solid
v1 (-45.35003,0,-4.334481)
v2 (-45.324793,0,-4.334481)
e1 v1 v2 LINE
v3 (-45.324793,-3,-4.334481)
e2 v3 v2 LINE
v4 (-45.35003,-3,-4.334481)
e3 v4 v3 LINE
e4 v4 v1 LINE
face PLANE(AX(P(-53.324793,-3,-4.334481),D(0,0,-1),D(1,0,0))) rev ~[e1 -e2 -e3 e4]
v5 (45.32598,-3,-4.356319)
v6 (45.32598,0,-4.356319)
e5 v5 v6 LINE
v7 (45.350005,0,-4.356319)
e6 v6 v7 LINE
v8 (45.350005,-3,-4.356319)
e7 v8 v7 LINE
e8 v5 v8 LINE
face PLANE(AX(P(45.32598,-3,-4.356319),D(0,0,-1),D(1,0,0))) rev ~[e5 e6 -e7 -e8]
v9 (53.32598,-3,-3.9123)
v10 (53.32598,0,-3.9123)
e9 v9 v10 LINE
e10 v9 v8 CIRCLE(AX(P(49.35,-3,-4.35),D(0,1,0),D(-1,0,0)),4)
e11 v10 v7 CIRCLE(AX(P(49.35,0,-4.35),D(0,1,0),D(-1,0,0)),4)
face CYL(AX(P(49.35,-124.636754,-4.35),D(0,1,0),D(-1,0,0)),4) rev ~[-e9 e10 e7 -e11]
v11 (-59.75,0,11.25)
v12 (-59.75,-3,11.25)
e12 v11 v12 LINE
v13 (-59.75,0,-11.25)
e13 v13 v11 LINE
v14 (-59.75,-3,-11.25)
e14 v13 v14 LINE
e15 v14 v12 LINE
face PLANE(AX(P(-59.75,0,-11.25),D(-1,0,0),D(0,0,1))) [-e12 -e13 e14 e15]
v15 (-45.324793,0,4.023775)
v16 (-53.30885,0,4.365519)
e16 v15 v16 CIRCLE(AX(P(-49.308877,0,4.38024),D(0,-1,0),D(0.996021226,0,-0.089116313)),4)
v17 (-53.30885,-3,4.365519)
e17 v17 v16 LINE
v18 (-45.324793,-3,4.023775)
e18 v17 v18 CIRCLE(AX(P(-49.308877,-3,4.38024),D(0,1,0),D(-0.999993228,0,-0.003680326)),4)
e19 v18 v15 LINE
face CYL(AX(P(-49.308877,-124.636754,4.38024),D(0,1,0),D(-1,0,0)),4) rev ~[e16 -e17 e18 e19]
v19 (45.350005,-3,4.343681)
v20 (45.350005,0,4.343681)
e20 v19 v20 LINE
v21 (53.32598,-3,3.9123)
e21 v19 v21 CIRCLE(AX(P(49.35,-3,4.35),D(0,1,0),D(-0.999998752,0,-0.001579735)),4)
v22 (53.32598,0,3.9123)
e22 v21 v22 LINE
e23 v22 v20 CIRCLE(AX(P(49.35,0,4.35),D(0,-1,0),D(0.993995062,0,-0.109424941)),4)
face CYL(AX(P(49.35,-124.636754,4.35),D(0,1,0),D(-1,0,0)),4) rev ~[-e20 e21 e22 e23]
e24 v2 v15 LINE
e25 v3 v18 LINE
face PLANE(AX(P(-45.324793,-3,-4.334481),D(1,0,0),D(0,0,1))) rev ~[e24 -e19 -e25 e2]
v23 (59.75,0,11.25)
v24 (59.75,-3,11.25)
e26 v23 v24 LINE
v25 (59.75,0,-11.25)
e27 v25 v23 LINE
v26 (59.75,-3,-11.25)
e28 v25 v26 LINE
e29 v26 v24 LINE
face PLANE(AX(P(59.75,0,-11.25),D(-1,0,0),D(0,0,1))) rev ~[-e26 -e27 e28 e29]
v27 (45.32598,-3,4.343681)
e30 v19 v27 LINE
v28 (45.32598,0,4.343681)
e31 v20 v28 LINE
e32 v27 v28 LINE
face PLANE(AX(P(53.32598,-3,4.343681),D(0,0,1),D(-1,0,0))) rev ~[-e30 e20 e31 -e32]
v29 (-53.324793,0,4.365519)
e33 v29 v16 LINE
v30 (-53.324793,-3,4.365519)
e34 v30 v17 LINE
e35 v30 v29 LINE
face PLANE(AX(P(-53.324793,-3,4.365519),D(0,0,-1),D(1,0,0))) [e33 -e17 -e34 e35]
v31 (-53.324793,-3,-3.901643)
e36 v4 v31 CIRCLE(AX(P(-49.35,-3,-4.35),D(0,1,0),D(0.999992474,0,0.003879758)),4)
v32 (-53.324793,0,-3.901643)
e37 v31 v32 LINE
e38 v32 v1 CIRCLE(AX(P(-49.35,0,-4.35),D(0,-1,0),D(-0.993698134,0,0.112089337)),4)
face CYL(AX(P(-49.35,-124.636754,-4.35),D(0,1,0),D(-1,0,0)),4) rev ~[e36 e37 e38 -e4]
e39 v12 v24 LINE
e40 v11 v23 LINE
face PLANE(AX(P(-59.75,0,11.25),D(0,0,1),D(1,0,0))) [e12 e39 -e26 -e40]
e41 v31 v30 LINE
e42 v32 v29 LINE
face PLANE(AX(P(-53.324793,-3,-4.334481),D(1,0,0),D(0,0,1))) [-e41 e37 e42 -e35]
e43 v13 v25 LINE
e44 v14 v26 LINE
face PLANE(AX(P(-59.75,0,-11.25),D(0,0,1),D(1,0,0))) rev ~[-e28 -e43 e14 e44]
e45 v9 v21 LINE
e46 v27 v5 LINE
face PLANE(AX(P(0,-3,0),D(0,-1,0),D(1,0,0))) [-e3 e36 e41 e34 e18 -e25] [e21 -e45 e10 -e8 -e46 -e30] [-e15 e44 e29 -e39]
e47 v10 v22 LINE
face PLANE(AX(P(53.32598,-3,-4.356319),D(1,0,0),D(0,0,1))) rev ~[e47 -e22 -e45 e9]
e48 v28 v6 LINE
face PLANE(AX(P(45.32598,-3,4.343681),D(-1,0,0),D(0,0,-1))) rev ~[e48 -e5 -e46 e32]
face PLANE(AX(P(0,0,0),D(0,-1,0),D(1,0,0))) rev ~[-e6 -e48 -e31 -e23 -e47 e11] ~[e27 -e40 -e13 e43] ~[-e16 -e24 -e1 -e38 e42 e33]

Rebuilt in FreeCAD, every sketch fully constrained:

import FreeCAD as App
import Part
import Sketcher
Q = App.Units.Quantity

doc = App.newDocument("Part")
body = doc.addObject("PartDesign::Body", "Body")

# Sketch on XZ plane
sketch1 = body.newObject("Sketcher::SketchObject", "Sketch")
sketch1.AttachmentSupport = (doc.getObject("XZ_Plane"), [""])
sketch1.MapMode = "FlatFace"
sketch1.addGeometry(Part.LineSegment(App.Vector(-60, 11, 0), App.Vector(-60, -11, 0)), False)
sketch1.addGeometry(Part.LineSegment(App.Vector(-60, -11, 0), App.Vector(60, -11, 0)), False)
sketch1.addGeometry(Part.LineSegment(App.Vector(60, -11, 0), App.Vector(60, 11, 0)), False)
sketch1.addGeometry(Part.LineSegment(App.Vector(60, 11, 0), App.Vector(-60, 11, 0)), False)
sketch1.addConstraint(Sketcher.Constraint("Coincident", 0, 2, 1, 1))
sketch1.addConstraint(Sketcher.Constraint("Coincident", 1, 2, 2, 1))
sketch1.addConstraint(Sketcher.Constraint("Coincident", 2, 2, 3, 1))
sketch1.addConstraint(Sketcher.Constraint("Coincident", 3, 2, 0, 1))
sketch1.addConstraint(Sketcher.Constraint("Vertical", 0))
sketch1.addConstraint(Sketcher.Constraint("Horizontal", 1))
sketch1.addConstraint(Sketcher.Constraint("Vertical", 2))
sketch1.addConstraint(Sketcher.Constraint("Horizontal", 3))
sketch1.addConstraint(Sketcher.Constraint("Symmetric", 0, 2, 2, 2, -1, 1))
sketch1.addConstraint(Sketcher.Constraint("DistanceX", 1, 1, 1, 2, Q("119.5 mm")))
sketch1.addConstraint(Sketcher.Constraint("DistanceY", 0, 2, 0, 1, Q("22.5 mm")))
pad1 = body.newObject("PartDesign::Pad", "Pad")
pad1.Profile = sketch1
pad1.Length = 3

# Sketch on XZ plane
sketch2 = body.newObject("Sketcher::SketchObject", "Sketch001")
sketch2.AttachmentSupport = (doc.getObject("XZ_Plane"), [""])
sketch2.MapMode = "FlatFace"
sketch2.AttachmentOffset = App.Placement(App.Vector(0, 0, 3), App.Rotation())
sketch2.addGeometry(Part.Circle(App.Vector(-49.3, 4.4, 0), App.Vector(0, 0, 1), 4), False)
sketch2.addConstraint(Sketcher.Constraint("Diameter", 0, Q("8 mm")))
sketch2.addConstraint(Sketcher.Constraint("DistanceY", -1, 1, 0, 3, Q("4.38024 mm")))
sketch2.addConstraint(Sketcher.Constraint("DistanceX", 0, 3, -1, 1, Q("49.308877 mm")))
doc.recompute()
hole = body.newObject("PartDesign::Hole", "Hole")
hole.Profile = sketch2
hole.ThreadType = "None"
hole.Diameter = 8
hole.DepthType = "ThroughAll"

# Sketch on XZ plane
sketch3 = body.newObject("Sketcher::SketchObject", "Sketch002")
sketch3.AttachmentSupport = (doc.getObject("XZ_Plane"), [""])
sketch3.MapMode = "FlatFace"
sketch3.AttachmentOffset = App.Placement(App.Vector(0, 0, 3), App.Rotation())
sketch3.addGeometry(Part.Circle(App.Vector(-49.4, -4.3, 0), App.Vector(0, 0, 1), 4), False)
sketch3.addConstraint(Sketcher.Constraint("Diameter", 0, Q("8 mm")))
sketch3.addConstraint(Sketcher.Constraint("DistanceX", 0, 3, -1, 1, Q("49.35 mm")))
sketch3.addConstraint(Sketcher.Constraint("DistanceY", 0, 3, -1, 1, Q("4.35 mm")))
doc.recompute()
hole2 = body.newObject("PartDesign::Hole", "Hole001")
hole2.Profile = sketch3
hole2.ThreadType = "None"
hole2.Diameter = 8
hole2.DepthType = "ThroughAll"

# Sketch on XZ plane
sketch4 = body.newObject("Sketcher::SketchObject", "Sketch003")
sketch4.AttachmentSupport = (doc.getObject("XZ_Plane"), [""])
sketch4.MapMode = "FlatFace"
sketch4.AttachmentOffset = App.Placement(App.Vector(0, 0, 3), App.Rotation())
sketch4.addGeometry(Part.LineSegment(App.Vector(-53, 4, 0), App.Vector(-53, -4, 0)), False)
sketch4.addGeometry(Part.LineSegment(App.Vector(-53, -4, 0), App.Vector(-45, -4, 0)), False)
sketch4.addGeometry(Part.LineSegment(App.Vector(-45, -4, 0), App.Vector(-45, 4, 0)), False)
sketch4.addGeometry(Part.LineSegment(App.Vector(-45, 4, 0), App.Vector(-53, 4, 0)), False)
sketch4.addConstraint(Sketcher.Constraint("Coincident", 0, 2, 1, 1))
sketch4.addConstraint(Sketcher.Constraint("Coincident", 1, 2, 2, 1))
sketch4.addConstraint(Sketcher.Constraint("Coincident", 2, 2, 3, 1))
sketch4.addConstraint(Sketcher.Constraint("Coincident", 3, 2, 0, 1))
sketch4.addConstraint(Sketcher.Constraint("Vertical", 0))
sketch4.addConstraint(Sketcher.Constraint("Horizontal", 1))
sketch4.addConstraint(Sketcher.Constraint("Vertical", 2))
sketch4.addConstraint(Sketcher.Constraint("Horizontal", 3))
sketch4.addConstraint(Sketcher.Constraint("DistanceX", 1, 1, 1, 2, Q("8 mm")))
sketch4.addConstraint(Sketcher.Constraint("DistanceY", 0, 2, 0, 1, Q("8.7 mm")))
sketch4.addConstraint(Sketcher.Constraint("DistanceY", 0, 2, -1, 1, Q("4.334481 mm")))
sketch4.addConstraint(Sketcher.Constraint("DistanceX", 0, 2, -1, 1, Q("53.324793 mm")))
pocket1 = body.newObject("PartDesign::Pocket", "Pocket")
pocket1.Profile = sketch4
pocket1.Length = 3

# Sketch on XZ plane
sketch5 = body.newObject("Sketcher::SketchObject", "Sketch004")
sketch5.AttachmentSupport = (doc.getObject("XZ_Plane"), [""])
sketch5.MapMode = "FlatFace"
sketch5.AttachmentOffset = App.Placement(App.Vector(0, 0, 3), App.Rotation())
sketch5.addGeometry(Part.Circle(App.Vector(49.4, 4.3, 0), App.Vector(0, 0, 1), 4), False)
sketch5.addConstraint(Sketcher.Constraint("Diameter", 0, Q("8 mm")))
sketch5.addConstraint(Sketcher.Constraint("DistanceX", -1, 1, 0, 3, Q("49.35 mm")))
sketch5.addConstraint(Sketcher.Constraint("DistanceY", -1, 1, 0, 3, Q("4.35 mm")))
doc.recompute()
hole3 = body.newObject("PartDesign::Hole", "Hole002")
hole3.Profile = sketch5
hole3.ThreadType = "None"
hole3.Diameter = 8
hole3.DepthType = "ThroughAll"

# Sketch on XZ plane
sketch6 = body.newObject("Sketcher::SketchObject", "Sketch005")
sketch6.AttachmentSupport = (doc.getObject("XZ_Plane"), [""])
sketch6.MapMode = "FlatFace"
sketch6.AttachmentOffset = App.Placement(App.Vector(0, 0, 3), App.Rotation())
sketch6.addGeometry(Part.Circle(App.Vector(49.4, -4.3, 0), App.Vector(0, 0, 1), 4), False)
sketch6.addConstraint(Sketcher.Constraint("Diameter", 0, Q("8 mm")))
sketch6.addConstraint(Sketcher.Constraint("DistanceX", -1, 1, 0, 3, Q("49.35 mm")))
sketch6.addConstraint(Sketcher.Constraint("DistanceY", 0, 3, -1, 1, Q("4.35 mm")))
doc.recompute()
hole4 = body.newObject("PartDesign::Hole", "Hole003")
hole4.Profile = sketch6
hole4.ThreadType = "None"
hole4.Diameter = 8
hole4.DepthType = "ThroughAll"

# Sketch on XZ plane
sketch7 = body.newObject("Sketcher::SketchObject", "Sketch006")
sketch7.AttachmentSupport = (doc.getObject("XZ_Plane"), [""])
sketch7.MapMode = "FlatFace"
sketch7.AttachmentOffset = App.Placement(App.Vector(0, 0, 3), App.Rotation())
sketch7.addGeometry(Part.LineSegment(App.Vector(53, -4, 0), App.Vector(53, 4, 0)), False)
sketch7.addGeometry(Part.LineSegment(App.Vector(53, 4, 0), App.Vector(45, 4, 0)), False)
sketch7.addGeometry(Part.LineSegment(App.Vector(45, 4, 0), App.Vector(45, -4, 0)), False)
sketch7.addGeometry(Part.LineSegment(App.Vector(45, -4, 0), App.Vector(53, -4, 0)), False)
sketch7.addConstraint(Sketcher.Constraint("Coincident", 0, 2, 1, 1))
sketch7.addConstraint(Sketcher.Constraint("Coincident", 1, 2, 2, 1))
sketch7.addConstraint(Sketcher.Constraint("Coincident", 2, 2, 3, 1))
sketch7.addConstraint(Sketcher.Constraint("Coincident", 3, 2, 0, 1))
sketch7.addConstraint(Sketcher.Constraint("Vertical", 0))
sketch7.addConstraint(Sketcher.Constraint("Horizontal", 1))
sketch7.addConstraint(Sketcher.Constraint("Vertical", 2))
sketch7.addConstraint(Sketcher.Constraint("Horizontal", 3))
sketch7.addConstraint(Sketcher.Constraint("DistanceX", 1, 2, 1, 1, Q("8 mm")))
sketch7.addConstraint(Sketcher.Constraint("DistanceY", 0, 1, 0, 2, Q("8.7 mm")))
sketch7.addConstraint(Sketcher.Constraint("DistanceX", -1, 1, 0, 2, Q("53.32598 mm")))
sketch7.addConstraint(Sketcher.Constraint("DistanceY", -1, 1, 0, 2, Q("4.343681 mm")))
pocket2 = body.newObject("PartDesign::Pocket", "Pocket001")
pocket2.Profile = sketch7
pocket2.Length = 3

doc.recompute()
